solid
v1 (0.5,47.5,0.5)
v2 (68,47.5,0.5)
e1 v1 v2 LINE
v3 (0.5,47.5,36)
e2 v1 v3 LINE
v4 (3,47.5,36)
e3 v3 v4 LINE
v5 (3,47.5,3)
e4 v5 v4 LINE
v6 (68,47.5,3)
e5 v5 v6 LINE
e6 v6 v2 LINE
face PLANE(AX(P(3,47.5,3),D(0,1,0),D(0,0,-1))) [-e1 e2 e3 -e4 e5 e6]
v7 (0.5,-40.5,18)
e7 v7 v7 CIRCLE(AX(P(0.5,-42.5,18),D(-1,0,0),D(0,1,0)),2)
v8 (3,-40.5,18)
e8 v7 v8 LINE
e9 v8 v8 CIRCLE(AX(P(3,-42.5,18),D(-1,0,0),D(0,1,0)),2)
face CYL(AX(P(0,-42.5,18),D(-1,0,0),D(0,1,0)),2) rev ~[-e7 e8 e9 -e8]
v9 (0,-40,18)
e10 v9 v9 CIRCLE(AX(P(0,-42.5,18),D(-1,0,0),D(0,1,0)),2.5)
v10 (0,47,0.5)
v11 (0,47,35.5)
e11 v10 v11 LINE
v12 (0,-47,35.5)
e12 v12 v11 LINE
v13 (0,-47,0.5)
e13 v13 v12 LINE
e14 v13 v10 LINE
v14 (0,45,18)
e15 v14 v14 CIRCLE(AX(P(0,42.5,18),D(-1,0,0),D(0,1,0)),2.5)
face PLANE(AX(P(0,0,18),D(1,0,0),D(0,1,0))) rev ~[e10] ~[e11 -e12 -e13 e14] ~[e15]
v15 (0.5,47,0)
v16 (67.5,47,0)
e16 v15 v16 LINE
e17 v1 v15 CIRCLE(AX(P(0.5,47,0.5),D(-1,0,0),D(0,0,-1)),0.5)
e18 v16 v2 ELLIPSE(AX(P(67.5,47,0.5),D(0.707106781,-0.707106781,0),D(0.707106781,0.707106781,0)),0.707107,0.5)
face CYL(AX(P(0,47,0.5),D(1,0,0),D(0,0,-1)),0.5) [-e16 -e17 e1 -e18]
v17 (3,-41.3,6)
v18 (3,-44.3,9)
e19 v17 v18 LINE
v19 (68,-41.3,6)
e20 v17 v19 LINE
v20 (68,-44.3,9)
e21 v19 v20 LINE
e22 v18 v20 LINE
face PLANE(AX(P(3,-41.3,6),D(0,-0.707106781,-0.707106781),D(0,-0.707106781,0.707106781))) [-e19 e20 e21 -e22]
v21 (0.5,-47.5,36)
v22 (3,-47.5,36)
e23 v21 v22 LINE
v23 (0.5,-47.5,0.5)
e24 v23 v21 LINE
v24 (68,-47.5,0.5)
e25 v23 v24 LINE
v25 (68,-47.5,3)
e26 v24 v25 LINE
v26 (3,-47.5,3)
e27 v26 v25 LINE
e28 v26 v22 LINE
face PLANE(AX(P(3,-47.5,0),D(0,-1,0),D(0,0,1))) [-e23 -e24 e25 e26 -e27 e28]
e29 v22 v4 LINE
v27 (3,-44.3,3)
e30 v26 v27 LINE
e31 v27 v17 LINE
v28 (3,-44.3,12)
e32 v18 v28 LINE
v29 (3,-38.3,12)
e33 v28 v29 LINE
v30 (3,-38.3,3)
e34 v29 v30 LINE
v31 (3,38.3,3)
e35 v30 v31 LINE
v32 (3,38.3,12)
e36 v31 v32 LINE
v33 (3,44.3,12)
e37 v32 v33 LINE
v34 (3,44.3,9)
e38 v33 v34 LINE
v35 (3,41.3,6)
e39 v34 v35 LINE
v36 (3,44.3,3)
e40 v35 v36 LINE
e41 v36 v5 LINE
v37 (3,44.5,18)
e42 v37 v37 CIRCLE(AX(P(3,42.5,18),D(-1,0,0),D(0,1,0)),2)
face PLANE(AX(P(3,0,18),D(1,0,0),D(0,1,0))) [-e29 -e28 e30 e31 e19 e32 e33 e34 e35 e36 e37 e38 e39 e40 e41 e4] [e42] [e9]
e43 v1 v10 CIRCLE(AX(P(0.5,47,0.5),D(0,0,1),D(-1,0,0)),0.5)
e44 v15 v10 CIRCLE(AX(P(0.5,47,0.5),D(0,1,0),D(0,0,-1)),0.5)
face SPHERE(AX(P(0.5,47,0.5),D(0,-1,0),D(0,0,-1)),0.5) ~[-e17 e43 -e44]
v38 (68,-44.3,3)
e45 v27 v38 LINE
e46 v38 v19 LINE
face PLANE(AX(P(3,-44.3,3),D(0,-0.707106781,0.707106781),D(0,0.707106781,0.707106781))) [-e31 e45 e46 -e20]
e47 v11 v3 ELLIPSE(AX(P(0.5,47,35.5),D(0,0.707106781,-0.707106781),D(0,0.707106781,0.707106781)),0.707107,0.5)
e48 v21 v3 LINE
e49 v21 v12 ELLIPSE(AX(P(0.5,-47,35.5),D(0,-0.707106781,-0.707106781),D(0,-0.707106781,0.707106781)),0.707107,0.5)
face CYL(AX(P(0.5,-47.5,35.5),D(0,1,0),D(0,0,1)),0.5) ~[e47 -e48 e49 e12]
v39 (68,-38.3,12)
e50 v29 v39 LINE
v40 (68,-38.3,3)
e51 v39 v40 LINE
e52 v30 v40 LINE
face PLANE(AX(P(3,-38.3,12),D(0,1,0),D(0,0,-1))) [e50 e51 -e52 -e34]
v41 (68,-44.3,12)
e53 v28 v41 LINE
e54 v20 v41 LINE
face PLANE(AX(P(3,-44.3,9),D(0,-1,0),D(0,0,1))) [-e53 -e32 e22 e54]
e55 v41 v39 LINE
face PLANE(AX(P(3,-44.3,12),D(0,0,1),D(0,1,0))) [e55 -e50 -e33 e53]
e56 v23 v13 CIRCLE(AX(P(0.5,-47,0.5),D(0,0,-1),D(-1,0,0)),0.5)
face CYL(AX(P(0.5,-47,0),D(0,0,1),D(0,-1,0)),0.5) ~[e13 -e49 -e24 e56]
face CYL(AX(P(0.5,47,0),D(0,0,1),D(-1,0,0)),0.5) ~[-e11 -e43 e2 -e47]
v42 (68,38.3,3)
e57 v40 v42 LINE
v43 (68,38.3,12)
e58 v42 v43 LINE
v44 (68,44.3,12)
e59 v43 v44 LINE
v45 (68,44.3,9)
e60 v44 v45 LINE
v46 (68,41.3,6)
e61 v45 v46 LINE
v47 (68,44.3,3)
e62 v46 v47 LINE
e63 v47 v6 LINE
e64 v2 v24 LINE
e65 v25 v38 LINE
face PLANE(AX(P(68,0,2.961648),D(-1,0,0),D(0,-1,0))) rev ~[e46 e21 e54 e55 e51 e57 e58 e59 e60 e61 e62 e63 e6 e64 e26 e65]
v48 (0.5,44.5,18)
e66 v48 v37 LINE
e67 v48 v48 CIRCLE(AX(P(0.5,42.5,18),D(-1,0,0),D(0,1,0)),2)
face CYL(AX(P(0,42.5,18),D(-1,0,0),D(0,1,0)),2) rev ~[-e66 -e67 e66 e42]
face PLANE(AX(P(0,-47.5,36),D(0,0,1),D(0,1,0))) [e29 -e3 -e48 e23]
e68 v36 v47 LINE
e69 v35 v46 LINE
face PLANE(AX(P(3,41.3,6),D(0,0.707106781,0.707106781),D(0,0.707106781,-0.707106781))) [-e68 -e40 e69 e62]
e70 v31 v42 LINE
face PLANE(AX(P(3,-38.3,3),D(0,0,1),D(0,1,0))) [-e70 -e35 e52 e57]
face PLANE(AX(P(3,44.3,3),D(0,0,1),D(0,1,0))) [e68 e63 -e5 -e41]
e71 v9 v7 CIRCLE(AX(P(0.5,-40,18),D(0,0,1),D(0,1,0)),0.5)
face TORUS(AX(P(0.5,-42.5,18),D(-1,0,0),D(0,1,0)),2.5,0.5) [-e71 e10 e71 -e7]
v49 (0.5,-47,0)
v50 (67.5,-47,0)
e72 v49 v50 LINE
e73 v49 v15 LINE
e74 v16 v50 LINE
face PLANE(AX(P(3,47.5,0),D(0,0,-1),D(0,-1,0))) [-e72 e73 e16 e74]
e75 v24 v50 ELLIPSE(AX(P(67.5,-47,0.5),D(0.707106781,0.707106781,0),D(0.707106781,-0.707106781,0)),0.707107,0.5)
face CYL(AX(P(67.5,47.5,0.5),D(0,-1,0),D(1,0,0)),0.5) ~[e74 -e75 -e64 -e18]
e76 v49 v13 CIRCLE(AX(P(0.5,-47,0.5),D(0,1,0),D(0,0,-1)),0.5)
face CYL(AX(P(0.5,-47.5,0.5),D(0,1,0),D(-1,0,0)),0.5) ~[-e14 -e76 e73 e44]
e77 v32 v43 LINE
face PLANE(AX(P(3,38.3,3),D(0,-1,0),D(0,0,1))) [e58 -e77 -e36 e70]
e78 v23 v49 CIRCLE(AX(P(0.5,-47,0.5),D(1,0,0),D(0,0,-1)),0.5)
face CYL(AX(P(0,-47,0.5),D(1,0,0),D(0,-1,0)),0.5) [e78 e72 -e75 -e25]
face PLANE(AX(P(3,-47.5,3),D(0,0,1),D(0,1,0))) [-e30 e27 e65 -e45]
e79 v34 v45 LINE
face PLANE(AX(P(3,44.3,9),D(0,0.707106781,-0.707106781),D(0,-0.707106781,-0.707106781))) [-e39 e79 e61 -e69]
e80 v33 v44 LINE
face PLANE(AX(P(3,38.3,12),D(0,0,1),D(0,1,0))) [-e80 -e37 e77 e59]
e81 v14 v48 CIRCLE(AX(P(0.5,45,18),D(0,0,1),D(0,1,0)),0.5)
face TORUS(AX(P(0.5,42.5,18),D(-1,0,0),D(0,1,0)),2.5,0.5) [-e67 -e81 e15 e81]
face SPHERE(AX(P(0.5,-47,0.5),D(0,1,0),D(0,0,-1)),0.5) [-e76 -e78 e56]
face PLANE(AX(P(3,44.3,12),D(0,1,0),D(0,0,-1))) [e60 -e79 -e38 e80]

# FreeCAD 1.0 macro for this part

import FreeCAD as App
import Part
import Sketcher
from FreeCAD import Vector
Q = App.Units.Quantity


def edges_at(feature, points):
    """Names of the edges that pass closest to the given points."""
    edges = feature.Shape.Edges
    near = lambda p: min(range(len(edges)), key=lambda i: edges[i].distToShape(Part.Vertex(*p))[0])
    return sorted({f"Edge{near(p) + 1}" for p in points})


def add_polygon(sketch, points):
    """Adds a closed chain of lines whose ends are joined by coincident constraints."""
    first, n = sketch.GeometryCount, len(points)
    for a, b in zip(points, points[1:] + points[:1]):
        sketch.addGeometry(Part.LineSegment(App.Vector(*a, 0), App.Vector(*b, 0)), False)
    for i in range(n):
        sketch.addConstraint(Sketcher.Constraint("Coincident", first + i, 2, first + (i + 1) % n, 1))

doc = App.newDocument("Part")
body = doc.addObject("PartDesign::Body", "Body")

# Sketch on YZ plane
sketch1 = body.newObject("Sketcher::SketchObject", "Sketch")
sketch1.AttachmentSupport = (doc.getObject("YZ_Plane"), [""])
sketch1.MapMode = "FlatFace"
add_polygon(sketch1, [(-48, 36), (-48, 0), (48, 0), (48, 36)])  # lines 0-3
sketch1.addConstraint([
    Sketcher.Constraint("Vertical", 0),
    Sketcher.Constraint("Horizontal", 1),
    Sketcher.Constraint("Vertical", 2),
    Sketcher.Constraint("Horizontal", 3),
    Sketcher.Constraint("Symmetric", 0, 2, 1, 2, -1, 1),
    Sketcher.Constraint("DistanceX", 1, 1, 1, 2, Q("95 mm")),
    Sketcher.Constraint("DistanceY", 0, 2, 0, 1, Q("36 mm")),
])
pad1 = body.newObject("PartDesign::Pad", "Pad")
pad1.Profile = sketch1
pad1.Length = 3

# Sketch on YZ plane
sketch2 = body.newObject("Sketcher::SketchObject", "Sketch001")
sketch2.AttachmentSupport = (doc.getObject("YZ_Plane"), [""])
sketch2.MapMode = "FlatFace"
sketch2.AttachmentOffset = App.Placement(Vector(0, 0, 3), App.Rotation())
add_polygon(sketch2, [(-47.5, 3), (-47.5, 0), (47.5, 0), (47.5, 3), (44.3, 3), (41.3, 6), (44.3, 9), (44.3, 12), (38.3, 12), (38.3, 3), (-38.3, 3), (-38.3, 12), (-44.3, 12), (-44.3, 9), (-41.3, 6), (-44.3, 3)])  # lines 0-15
sketch2.addConstraint([
    Sketcher.Constraint("Vertical", 0),
    Sketcher.Constraint("Horizontal", 1),
    Sketcher.Constraint("Vertical", 2),
    Sketcher.Constraint("Horizontal", 3),
    Sketcher.Constraint("Vertical", 6),
    Sketcher.Constraint("Horizontal", 7),
    Sketcher.Constraint("Vertical", 8),
    Sketcher.Constraint("Horizontal", 9),
    Sketcher.Constraint("Vertical", 10),
    Sketcher.Constraint("Horizontal", 11),
    Sketcher.Constraint("Vertical", 12),
    Sketcher.Constraint("Horizontal", 15),
    Sketcher.Constraint("Symmetric", 0, 2, 1, 2, -1, 1),
    Sketcher.Constraint("Symmetric", 7, 2, 10, 2, -2),
    Sketcher.Constraint("Symmetric", 5, 2, 12, 2, -2),
    Sketcher.Constraint("Symmetric", 4, 2, 13, 2, -2),
    Sketcher.Constraint("Symmetric", 3, 2, 14, 2, -2),
    Sketcher.Constraint("Perpendicular", 4, 5),
    Sketcher.Constraint("Perpendicular", 5, 13),
    Sketcher.Constraint("Horizontal", 3, 2, 8, 2),
    Sketcher.Constraint("Vertical", 3, 2, 5, 2),
    Sketcher.Constraint("Equal", 2, 6),
    Sketcher.Constraint("DistanceX", 1, 1, 1, 2, Q("95 mm")),
    Sketcher.Constraint("DistanceX", 7, 2, 7, 1, Q("6 mm")),
    Sketcher.Constraint("DistanceY", 0, 2, 0, 1, Q("3 mm")),
    Sketcher.Constraint("DistanceY", 8, 2, 8, 1, Q("9 mm")),
    Sketcher.Constraint("DistanceX", 3, 2, 3, 1, Q("3.2 mm")),
])
pad2 = body.newObject("PartDesign::Pad", "Pad001")
pad2.Profile = sketch2
pad2.Length = 65

# Sketch on YZ plane
sketch3 = body.newObject("Sketcher::SketchObject", "Sketch002")
sketch3.AttachmentSupport = (doc.getObject("YZ_Plane"), [""])
sketch3.MapMode = "FlatFace"
sketch3.addGeometry([
    Part.Circle(Vector(-42.5, 18, 0), Vector(0, 0, 1), 2),
    Part.Circle(Vector(42.5, 18, 0), Vector(0, 0, 1), 2),
], False)
sketch3.addConstraint([
    Sketcher.Constraint("Equal", 0, 1),
    Sketcher.Constraint("Symmetric", 0, 3, 1, 3, -2),
    Sketcher.Constraint("Diameter", 0, Q("4 mm")),
    Sketcher.Constraint("DistanceY", -1, 1, 0, 3, Q("18 mm")),
    Sketcher.Constraint("DistanceX", 0, 3, 1, 3, Q("85 mm")),
])
pocket1 = body.newObject("PartDesign::Pocket", "Pocket")
pocket1.Profile = sketch3
pocket1.Type = "ThroughAll"
pocket1.Reversed = True
doc.recompute()

fillet = body.newObject("PartDesign::Fillet", "Fillet")
fillet.Base = (pocket1, edges_at(pocket1, [
    (0, 0, 0),
    (34, 47.5, 0),
    (68, 0, 0),
    (34, -47.5, 0),
    (0, -47.5, 18),
    (0, 47.5, 18),
    (0, 0, 36),
    (0, 40.5, 18),
    (0, -44.5, 18),
]))
fillet.Radius = 0.5

doc.recompute()
